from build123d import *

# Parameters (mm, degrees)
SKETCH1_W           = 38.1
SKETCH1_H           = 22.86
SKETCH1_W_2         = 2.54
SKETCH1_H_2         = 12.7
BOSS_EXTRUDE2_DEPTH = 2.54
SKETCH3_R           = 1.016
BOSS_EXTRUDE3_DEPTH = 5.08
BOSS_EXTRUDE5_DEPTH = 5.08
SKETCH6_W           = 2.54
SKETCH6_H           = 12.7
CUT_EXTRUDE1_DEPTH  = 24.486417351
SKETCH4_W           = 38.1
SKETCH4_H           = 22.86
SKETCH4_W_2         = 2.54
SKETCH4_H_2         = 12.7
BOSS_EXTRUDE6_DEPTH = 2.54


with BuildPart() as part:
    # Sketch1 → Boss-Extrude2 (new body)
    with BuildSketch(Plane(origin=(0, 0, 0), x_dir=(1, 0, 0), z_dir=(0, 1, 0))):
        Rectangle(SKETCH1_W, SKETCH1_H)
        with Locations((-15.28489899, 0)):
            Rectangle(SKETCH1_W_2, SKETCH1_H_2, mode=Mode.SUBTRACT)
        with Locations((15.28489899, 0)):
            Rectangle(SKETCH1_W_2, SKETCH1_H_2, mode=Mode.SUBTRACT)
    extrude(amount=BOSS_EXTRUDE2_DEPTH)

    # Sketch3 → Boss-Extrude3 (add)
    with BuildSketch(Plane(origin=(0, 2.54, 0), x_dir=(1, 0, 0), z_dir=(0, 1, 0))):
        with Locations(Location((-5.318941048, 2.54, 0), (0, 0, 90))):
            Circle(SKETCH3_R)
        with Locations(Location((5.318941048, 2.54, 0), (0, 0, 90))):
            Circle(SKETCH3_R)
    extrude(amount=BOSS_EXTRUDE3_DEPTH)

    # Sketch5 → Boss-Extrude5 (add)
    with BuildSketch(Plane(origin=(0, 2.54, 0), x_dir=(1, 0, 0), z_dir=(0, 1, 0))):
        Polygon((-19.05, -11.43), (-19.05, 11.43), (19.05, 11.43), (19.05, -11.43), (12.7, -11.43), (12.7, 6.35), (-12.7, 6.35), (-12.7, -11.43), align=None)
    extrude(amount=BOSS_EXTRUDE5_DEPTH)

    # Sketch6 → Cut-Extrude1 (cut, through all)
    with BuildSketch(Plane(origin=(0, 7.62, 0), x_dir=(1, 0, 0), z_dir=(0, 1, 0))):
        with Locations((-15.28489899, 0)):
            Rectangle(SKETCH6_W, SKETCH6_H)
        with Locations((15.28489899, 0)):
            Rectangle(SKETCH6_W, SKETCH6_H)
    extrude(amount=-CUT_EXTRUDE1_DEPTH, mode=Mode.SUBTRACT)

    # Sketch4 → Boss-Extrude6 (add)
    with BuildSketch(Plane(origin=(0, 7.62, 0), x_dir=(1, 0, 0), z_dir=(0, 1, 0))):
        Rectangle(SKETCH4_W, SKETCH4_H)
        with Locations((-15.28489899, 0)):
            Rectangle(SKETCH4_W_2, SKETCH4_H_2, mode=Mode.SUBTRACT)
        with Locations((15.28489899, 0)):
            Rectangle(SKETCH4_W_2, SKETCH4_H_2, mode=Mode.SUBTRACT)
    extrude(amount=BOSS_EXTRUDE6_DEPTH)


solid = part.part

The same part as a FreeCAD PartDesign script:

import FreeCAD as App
import Part
import Sketcher
Q = App.Units.Quantity

doc = App.newDocument("Part")
body = doc.addObject("PartDesign::Body", "Body")

# Sketch on XZ plane
sketch1 = doc.addObject("Sketcher::SketchObject", "Sketch")
body.addObject(sketch1)
sketch1.AttachmentSupport = (doc.XZ_Plane, [""])
sketch1.MapMode = "FlatFace"
sketch1.addGeometry([
    Part.LineSegment(App.Vector(-19.05, -11.43, 0), App.Vector(-19.05, 11.43, 0)),  # 0
    Part.LineSegment(App.Vector(-19.05, 11.43, 0), App.Vector(19.05, 11.43, 0)),  # 1
    Part.LineSegment(App.Vector(19.05, 11.43, 0), App.Vector(19.05, -11.43, 0)),  # 2
    Part.LineSegment(App.Vector(19.05, -11.43, 0), App.Vector(-19.05, -11.43, 0)),  # 3
    Part.LineSegment(App.Vector(-14.014899, 6.35, 0), App.Vector(-16.554899, 6.35, 0)),  # 4
    Part.LineSegment(App.Vector(-16.554899, 6.35, 0), App.Vector(-16.554899, -6.35, 0)),  # 5
    Part.LineSegment(App.Vector(-16.554899, -6.35, 0), App.Vector(-14.014899, -6.35, 0)),  # 6
    Part.LineSegment(App.Vector(-14.014899, -6.35, 0), App.Vector(-14.014899, 6.35, 0)),  # 7
    Part.LineSegment(App.Vector(16.554899, 6.35, 0), App.Vector(14.014899, 6.35, 0)),  # 8
    Part.LineSegment(App.Vector(14.014899, 6.35, 0), App.Vector(14.014899, -6.35, 0)),  # 9
    Part.LineSegment(App.Vector(14.014899, -6.35, 0), App.Vector(16.554899, -6.35, 0)),  # 10
    Part.LineSegment(App.Vector(16.554899, -6.35, 0), App.Vector(16.554899, 6.35, 0)),  # 11
], False)
sketch1.addConstraint([
    Sketcher.Constraint("Coincident", 0, 2, 1, 1),
    Sketcher.Constraint("Coincident", 1, 2, 2, 1),
    Sketcher.Constraint("Coincident", 2, 2, 3, 1),
    Sketcher.Constraint("Coincident", 3, 2, 0, 1),
    Sketcher.Constraint("Coincident", 4, 2, 5, 1),
    Sketcher.Constraint("Coincident", 5, 2, 6, 1),
    Sketcher.Constraint("Coincident", 6, 2, 7, 1),
    Sketcher.Constraint("Coincident", 7, 2, 4, 1),
    Sketcher.Constraint("Coincident", 8, 2, 9, 1),
    Sketcher.Constraint("Coincident", 9, 2, 10, 1),
    Sketcher.Constraint("Coincident", 10, 2, 11, 1),
    Sketcher.Constraint("Coincident", 11, 2, 8, 1),
    Sketcher.Constraint("Vertical", 0),
    Sketcher.Constraint("Horizontal", 1),
    Sketcher.Constraint("Vertical", 2),
    Sketcher.Constraint("Horizontal", 3),
    Sketcher.Constraint("Horizontal", 4),
    Sketcher.Constraint("Vertical", 5),
    Sketcher.Constraint("Horizontal", 6),
    Sketcher.Constraint("Vertical", 7),
    Sketcher.Constraint("Horizontal", 8),
    Sketcher.Constraint("Vertical", 9),
    Sketcher.Constraint("Horizontal", 10),
    Sketcher.Constraint("Vertical", 11),
    Sketcher.Constraint("Symmetric", 0, 2, 2, 2, -1, 1),
    Sketcher.Constraint("Symmetric", 6, 2, 8, 2, -1, 1),
    Sketcher.Constraint("Symmetric", 4, 2, 10, 2, -1, 1),
    Sketcher.Constraint("Horizontal", 7, 2, 8, 2),
    Sketcher.Constraint("DistanceX", 1, 1, 1, 2, Q("1.5 in")),
    Sketcher.Constraint("DistanceX", 4, 2, 4, 1, Q("0.1 in")),
    Sketcher.Constraint("DistanceY", 0, 1, 0, 2, Q("0.9 in")),
    Sketcher.Constraint("DistanceY", 5, 2, 5, 1, Q("0.5 in")),
    Sketcher.Constraint("DistanceX", 4, 2, -1, 1, 16.554899),
])
pad1 = doc.addObject("PartDesign::Pad", "Pad")
body.addObject(pad1)
pad1.Profile = sketch1
pad1.Length = Q("0.1 in")
pad1.Reversed = True

# Sketch on XZ plane
sketch2 = doc.addObject("Sketcher::SketchObject", "Sketch001")
body.addObject(sketch2)
sketch2.AttachmentSupport = (doc.XZ_Plane, [""])
sketch2.MapMode = "FlatFace"
sketch2.AttachmentOffset = App.Placement(App.Vector(0, 0, -0.1 * 25.4), App.Rotation())
sketch2.addGeometry([
    Part.Circle(App.Vector(-5.318941, -2.54, 0), App.Vector(0, 0, 1), 1.016),
    Part.Circle(App.Vector(5.318941, -2.54, 0), App.Vector(0, 0, 1), 1.016),
], False)
sketch2.addConstraint([
    Sketcher.Constraint("Equal", 0, 1),
    Sketcher.Constraint("Symmetric", 0, 3, 1, 3, -2),
    Sketcher.Constraint("Diameter", 0, Q("0.08 in")),
    Sketcher.Constraint("DistanceY", 0, 3, -1, 1, Q("0.1 in")),
    Sketcher.Constraint("DistanceX", 0, 3, -1, 1, 5.318941),
])
pad2 = doc.addObject("PartDesign::Pad", "Pad001")
body.addObject(pad2)
pad2.Profile = sketch2
pad2.Length = Q("0.2 in")
pad2.Reversed = True

# Sketch on XZ plane
sketch3 = doc.addObject("Sketcher::SketchObject", "Sketch002")
body.addObject(sketch3)
sketch3.AttachmentSupport = (doc.XZ_Plane, [""])
sketch3.MapMode = "FlatFace"
sketch3.AttachmentOffset = App.Placement(App.Vector(0, 0, -0.1 * 25.4), App.Rotation())
sketch3.addGeometry([
    Part.LineSegment(App.Vector(-19.05, -11.43, 0), App.Vector(-19.05, 11.43, 0)),  # 0
    Part.LineSegment(App.Vector(-19.05, 11.43, 0), App.Vector(-12.7, 11.43, 0)),  # 1
    Part.LineSegment(App.Vector(-12.7, 11.43, 0), App.Vector(-12.7, -6.35, 0)),  # 2
    Part.LineSegment(App.Vector(-12.7, -6.35, 0), App.Vector(12.7, -6.35, 0)),  # 3
    Part.LineSegment(App.Vector(12.7, -6.35, 0), App.Vector(12.7, 11.43, 0)),  # 4
    Part.LineSegment(App.Vector(12.7, 11.43, 0), App.Vector(19.05, 11.43, 0)),  # 5
    Part.LineSegment(App.Vector(19.05, 11.43, 0), App.Vector(19.05, -11.43, 0)),  # 6
    Part.LineSegment(App.Vector(19.05, -11.43, 0), App.Vector(-19.05, -11.43, 0)),  # 7
], False)
sketch3.addConstraint([
    Sketcher.Constraint("Coincident", 0, 2, 1, 1),
    Sketcher.Constraint("Coincident", 1, 2, 2, 1),
    Sketcher.Constraint("Coincident", 2, 2, 3, 1),
    Sketcher.Constraint("Coincident", 3, 2, 4, 1),
    Sketcher.Constraint("Coincident", 4, 2, 5, 1),
    Sketcher.Constraint("Coincident", 5, 2, 6, 1),
    Sketcher.Constraint("Coincident", 6, 2, 7, 1),
    Sketcher.Constraint("Coincident", 7, 2, 0, 1),
    Sketcher.Constraint("Vertical", 0),
    Sketcher.Constraint("Horizontal", 1),
    Sketcher.Constraint("Vertical", 2),
    Sketcher.Constraint("Horizontal", 3),
    Sketcher.Constraint("Vertical", 4),
    Sketcher.Constraint("Horizontal", 5),
    Sketcher.Constraint("Vertical", 6),
    Sketcher.Constraint("Horizontal", 7),
    Sketcher.Constraint("Symmetric", 0, 2, 6, 2, -1, 1),
    Sketcher.Constraint("Symmetric", 1, 2, 4, 2, -2),
    Sketcher.Constraint("DistanceX", 3, 1, 3, 2, Q("1 in")),
    Sketcher.Constraint("DistanceX", 7, 2, 7, 1, Q("1.5 in")),
    Sketcher.Constraint("DistanceY", 0, 1, 0, 2, Q("0.9 in")),
    Sketcher.Constraint("DistanceY", 2, 2, 2, 1, Q("0.7 in")),
])
pad3 = doc.addObject("PartDesign::Pad", "Pad002")
body.addObject(pad3)
pad3.Profile = sketch3
pad3.Length = Q("0.2 in")
pad3.Reversed = True

# Sketch on XZ plane
sketch4 = doc.addObject("Sketcher::SketchObject", "Sketch003")
body.addObject(sketch4)
sketch4.AttachmentSupport = (doc.XZ_Plane, [""])
sketch4.MapMode = "FlatFace"
sketch4.AttachmentOffset = App.Placement(App.Vector(0, 0, -0.3 * 25.4), App.Rotation())
sketch4.addGeometry([
    Part.LineSegment(App.Vector(-16.554899, -6.35, 0), App.Vector(-16.554899, 6.35, 0)),  # 0
    Part.LineSegment(App.Vector(-16.554899, 6.35, 0), App.Vector(-14.014899, 6.35, 0)),  # 1
    Part.LineSegment(App.Vector(-14.014899, 6.35, 0), App.Vector(-14.014899, -6.35, 0)),  # 2
    Part.LineSegment(App.Vector(-14.014899, -6.35, 0), App.Vector(-16.554899, -6.35, 0)),  # 3
    Part.LineSegment(App.Vector(14.014899, -6.35, 0), App.Vector(14.014899, 6.35, 0)),  # 4
    Part.LineSegment(App.Vector(14.014899, 6.35, 0), App.Vector(16.554899, 6.35, 0)),  # 5
    Part.LineSegment(App.Vector(16.554899, 6.35, 0), App.Vector(16.554899, -6.35, 0)),  # 6
    Part.LineSegment(App.Vector(16.554899, -6.35, 0), App.Vector(14.014899, -6.35, 0)),  # 7
], False)
sketch4.addConstraint([
    Sketcher.Constraint("Coincident", 0, 2, 1, 1),
    Sketcher.Constraint("Coincident", 1, 2, 2, 1),
    Sketcher.Constraint("Coincident", 2, 2, 3, 1),
    Sketcher.Constraint("Coincident", 3, 2, 0, 1),
    Sketcher.Constraint("Coincident", 4, 2, 5, 1),
    Sketcher.Constraint("Coincident", 5, 2, 6, 1),
    Sketcher.Constraint("Coincident", 6, 2, 7, 1),
    Sketcher.Constraint("Coincident", 7, 2, 4, 1),
    Sketcher.Constraint("Vertical", 0),
    Sketcher.Constraint("Horizontal", 1),
    Sketcher.Constraint("Vertical", 2),
    Sketcher.Constraint("Horizontal", 3),
    Sketcher.Constraint("Vertical", 4),
    Sketcher.Constraint("Horizontal", 5),
    Sketcher.Constraint("Vertical", 6),
    Sketcher.Constraint("Horizontal", 7),
    Sketcher.Constraint("Symmetric", 2, 2, 4, 2, -1, 1),
    Sketcher.Constraint("Symmetric", 0, 2, 6, 2, -1, 1),
    Sketcher.Constraint("Horizontal", 1, 2, 4, 2),
    Sketcher.Constraint("DistanceX", 1, 1, 1, 2, Q("0.1 in")),
    Sketcher.Constraint("DistanceY", 0, 1, 0, 2, Q("0.5 in")),
    Sketcher.Constraint("DistanceX", 0, 2, -1, 1, 16.554899),
])
pocket1 = doc.addObject("PartDesign::Pocket", "Pocket")
body.addObject(pocket1)
pocket1.Profile = sketch4
pocket1.Type = "ThroughAll"
pocket1.Reversed = True

# Sketch on XZ plane
sketch5 = doc.addObject("Sketcher::SketchObject", "Sketch004")
body.addObject(sketch5)
sketch5.AttachmentSupport = (doc.XZ_Plane, [""])
sketch5.MapMode = "FlatFace"
sketch5.AttachmentOffset = App.Placement(App.Vector(0, 0, -0.3 * 25.4), App.Rotation())
sketch5.addGeometry([
    Part.LineSegment(App.Vector(-19.05, -11.43, 0), App.Vector(-19.05, 11.43, 0)),  # 0
    Part.LineSegment(App.Vector(-19.05, 11.43, 0), App.Vector(19.05, 11.43, 0)),  # 1
    Part.LineSegment(App.Vector(19.05, 11.43, 0), App.Vector(19.05, -11.43, 0)),  # 2
    Part.LineSegment(App.Vector(19.05, -11.43, 0), App.Vector(-19.05, -11.43, 0)),  # 3
    Part.LineSegment(App.Vector(-14.014899, 6.35, 0), App.Vector(-16.554899, 6.35, 0)),  # 4
    Part.LineSegment(App.Vector(-16.554899, 6.35, 0), App.Vector(-16.554899, -6.35, 0)),  # 5
    Part.LineSegment(App.Vector(-16.554899, -6.35, 0), App.Vector(-14.014899, -6.35, 0)),  # 6
    Part.LineSegment(App.Vector(-14.014899, -6.35, 0), App.Vector(-14.014899, 6.35, 0)),  # 7
    Part.LineSegment(App.Vector(16.554899, 6.35, 0), App.Vector(14.014899, 6.35, 0)),  # 8
    Part.LineSegment(App.Vector(14.014899, 6.35, 0), App.Vector(14.014899, -6.35, 0)),  # 9
    Part.LineSegment(App.Vector(14.014899, -6.35, 0), App.Vector(16.554899, -6.35, 0)),  # 10
    Part.LineSegment(App.Vector(16.554899, -6.35, 0), App.Vector(16.554899, 6.35, 0)),  # 11
], False)
sketch5.addConstraint([
    Sketcher.Constraint("Coincident", 0, 2, 1, 1),
    Sketcher.Constraint("Coincident", 1, 2, 2, 1),
    Sketcher.Constraint("Coincident", 2, 2, 3, 1),
    Sketcher.Constraint("Coincident", 3, 2, 0, 1),
    Sketcher.Constraint("Coincident", 4, 2, 5, 1),
    Sketcher.Constraint("Coincident", 5, 2, 6, 1),
    Sketcher.Constraint("Coincident", 6, 2, 7, 1),
    Sketcher.Constraint("Coincident", 7, 2, 4, 1),
    Sketcher.Constraint("Coincident", 8, 2, 9, 1),
    Sketcher.Constraint("Coincident", 9, 2, 10, 1),
    Sketcher.Constraint("Coincident", 10, 2, 11, 1),
    Sketcher.Constraint("Coincident", 11, 2, 8, 1),
    Sketcher.Constraint("Vertical", 0),
    Sketcher.Constraint("Horizontal", 1),
    Sketcher.Constraint("Vertical", 2),
    Sketcher.Constraint("Horizontal", 3),
    Sketcher.Constraint("Horizontal", 4),
    Sketcher.Constraint("Vertical", 5),
    Sketcher.Constraint("Horizontal", 6),
    Sketcher.Constraint("Vertical", 7),
    Sketcher.Constraint("Horizontal", 8),
    Sketcher.Constraint("Vertical", 9),
    Sketcher.Constraint("Horizontal", 10),
    Sketcher.Constraint("Vertical", 11),
    Sketcher.Constraint("Symmetric", 0, 2, 2, 2, -1, 1),
    Sketcher.Constraint("Symmetric", 6, 2, 8, 2, -1, 1),
    Sketcher.Constraint("Symmetric", 4, 2, 10, 2, -1, 1),
    Sketcher.Constraint("Horizontal", 7, 2, 8, 2),
    Sketcher.Constraint("DistanceX", 1, 1, 1, 2, Q("1.5 in")),
    Sketcher.Constraint("DistanceX", 4, 2, 4, 1, Q("0.1 in")),
    Sketcher.Constraint("DistanceY", 0, 1, 0, 2, Q("0.9 in")),
    Sketcher.Constraint("DistanceY", 5, 2, 5, 1, Q("0.5 in")),
    Sketcher.Constraint("DistanceX", 4, 2, -1, 1, 16.554899),
])
pad4 = doc.addObject("PartDesign::Pad", "Pad003")
body.addObject(pad4)
pad4.Profile = sketch5
pad4.Length = Q("0.1 in")
pad4.Reversed = True

doc.recompute()
